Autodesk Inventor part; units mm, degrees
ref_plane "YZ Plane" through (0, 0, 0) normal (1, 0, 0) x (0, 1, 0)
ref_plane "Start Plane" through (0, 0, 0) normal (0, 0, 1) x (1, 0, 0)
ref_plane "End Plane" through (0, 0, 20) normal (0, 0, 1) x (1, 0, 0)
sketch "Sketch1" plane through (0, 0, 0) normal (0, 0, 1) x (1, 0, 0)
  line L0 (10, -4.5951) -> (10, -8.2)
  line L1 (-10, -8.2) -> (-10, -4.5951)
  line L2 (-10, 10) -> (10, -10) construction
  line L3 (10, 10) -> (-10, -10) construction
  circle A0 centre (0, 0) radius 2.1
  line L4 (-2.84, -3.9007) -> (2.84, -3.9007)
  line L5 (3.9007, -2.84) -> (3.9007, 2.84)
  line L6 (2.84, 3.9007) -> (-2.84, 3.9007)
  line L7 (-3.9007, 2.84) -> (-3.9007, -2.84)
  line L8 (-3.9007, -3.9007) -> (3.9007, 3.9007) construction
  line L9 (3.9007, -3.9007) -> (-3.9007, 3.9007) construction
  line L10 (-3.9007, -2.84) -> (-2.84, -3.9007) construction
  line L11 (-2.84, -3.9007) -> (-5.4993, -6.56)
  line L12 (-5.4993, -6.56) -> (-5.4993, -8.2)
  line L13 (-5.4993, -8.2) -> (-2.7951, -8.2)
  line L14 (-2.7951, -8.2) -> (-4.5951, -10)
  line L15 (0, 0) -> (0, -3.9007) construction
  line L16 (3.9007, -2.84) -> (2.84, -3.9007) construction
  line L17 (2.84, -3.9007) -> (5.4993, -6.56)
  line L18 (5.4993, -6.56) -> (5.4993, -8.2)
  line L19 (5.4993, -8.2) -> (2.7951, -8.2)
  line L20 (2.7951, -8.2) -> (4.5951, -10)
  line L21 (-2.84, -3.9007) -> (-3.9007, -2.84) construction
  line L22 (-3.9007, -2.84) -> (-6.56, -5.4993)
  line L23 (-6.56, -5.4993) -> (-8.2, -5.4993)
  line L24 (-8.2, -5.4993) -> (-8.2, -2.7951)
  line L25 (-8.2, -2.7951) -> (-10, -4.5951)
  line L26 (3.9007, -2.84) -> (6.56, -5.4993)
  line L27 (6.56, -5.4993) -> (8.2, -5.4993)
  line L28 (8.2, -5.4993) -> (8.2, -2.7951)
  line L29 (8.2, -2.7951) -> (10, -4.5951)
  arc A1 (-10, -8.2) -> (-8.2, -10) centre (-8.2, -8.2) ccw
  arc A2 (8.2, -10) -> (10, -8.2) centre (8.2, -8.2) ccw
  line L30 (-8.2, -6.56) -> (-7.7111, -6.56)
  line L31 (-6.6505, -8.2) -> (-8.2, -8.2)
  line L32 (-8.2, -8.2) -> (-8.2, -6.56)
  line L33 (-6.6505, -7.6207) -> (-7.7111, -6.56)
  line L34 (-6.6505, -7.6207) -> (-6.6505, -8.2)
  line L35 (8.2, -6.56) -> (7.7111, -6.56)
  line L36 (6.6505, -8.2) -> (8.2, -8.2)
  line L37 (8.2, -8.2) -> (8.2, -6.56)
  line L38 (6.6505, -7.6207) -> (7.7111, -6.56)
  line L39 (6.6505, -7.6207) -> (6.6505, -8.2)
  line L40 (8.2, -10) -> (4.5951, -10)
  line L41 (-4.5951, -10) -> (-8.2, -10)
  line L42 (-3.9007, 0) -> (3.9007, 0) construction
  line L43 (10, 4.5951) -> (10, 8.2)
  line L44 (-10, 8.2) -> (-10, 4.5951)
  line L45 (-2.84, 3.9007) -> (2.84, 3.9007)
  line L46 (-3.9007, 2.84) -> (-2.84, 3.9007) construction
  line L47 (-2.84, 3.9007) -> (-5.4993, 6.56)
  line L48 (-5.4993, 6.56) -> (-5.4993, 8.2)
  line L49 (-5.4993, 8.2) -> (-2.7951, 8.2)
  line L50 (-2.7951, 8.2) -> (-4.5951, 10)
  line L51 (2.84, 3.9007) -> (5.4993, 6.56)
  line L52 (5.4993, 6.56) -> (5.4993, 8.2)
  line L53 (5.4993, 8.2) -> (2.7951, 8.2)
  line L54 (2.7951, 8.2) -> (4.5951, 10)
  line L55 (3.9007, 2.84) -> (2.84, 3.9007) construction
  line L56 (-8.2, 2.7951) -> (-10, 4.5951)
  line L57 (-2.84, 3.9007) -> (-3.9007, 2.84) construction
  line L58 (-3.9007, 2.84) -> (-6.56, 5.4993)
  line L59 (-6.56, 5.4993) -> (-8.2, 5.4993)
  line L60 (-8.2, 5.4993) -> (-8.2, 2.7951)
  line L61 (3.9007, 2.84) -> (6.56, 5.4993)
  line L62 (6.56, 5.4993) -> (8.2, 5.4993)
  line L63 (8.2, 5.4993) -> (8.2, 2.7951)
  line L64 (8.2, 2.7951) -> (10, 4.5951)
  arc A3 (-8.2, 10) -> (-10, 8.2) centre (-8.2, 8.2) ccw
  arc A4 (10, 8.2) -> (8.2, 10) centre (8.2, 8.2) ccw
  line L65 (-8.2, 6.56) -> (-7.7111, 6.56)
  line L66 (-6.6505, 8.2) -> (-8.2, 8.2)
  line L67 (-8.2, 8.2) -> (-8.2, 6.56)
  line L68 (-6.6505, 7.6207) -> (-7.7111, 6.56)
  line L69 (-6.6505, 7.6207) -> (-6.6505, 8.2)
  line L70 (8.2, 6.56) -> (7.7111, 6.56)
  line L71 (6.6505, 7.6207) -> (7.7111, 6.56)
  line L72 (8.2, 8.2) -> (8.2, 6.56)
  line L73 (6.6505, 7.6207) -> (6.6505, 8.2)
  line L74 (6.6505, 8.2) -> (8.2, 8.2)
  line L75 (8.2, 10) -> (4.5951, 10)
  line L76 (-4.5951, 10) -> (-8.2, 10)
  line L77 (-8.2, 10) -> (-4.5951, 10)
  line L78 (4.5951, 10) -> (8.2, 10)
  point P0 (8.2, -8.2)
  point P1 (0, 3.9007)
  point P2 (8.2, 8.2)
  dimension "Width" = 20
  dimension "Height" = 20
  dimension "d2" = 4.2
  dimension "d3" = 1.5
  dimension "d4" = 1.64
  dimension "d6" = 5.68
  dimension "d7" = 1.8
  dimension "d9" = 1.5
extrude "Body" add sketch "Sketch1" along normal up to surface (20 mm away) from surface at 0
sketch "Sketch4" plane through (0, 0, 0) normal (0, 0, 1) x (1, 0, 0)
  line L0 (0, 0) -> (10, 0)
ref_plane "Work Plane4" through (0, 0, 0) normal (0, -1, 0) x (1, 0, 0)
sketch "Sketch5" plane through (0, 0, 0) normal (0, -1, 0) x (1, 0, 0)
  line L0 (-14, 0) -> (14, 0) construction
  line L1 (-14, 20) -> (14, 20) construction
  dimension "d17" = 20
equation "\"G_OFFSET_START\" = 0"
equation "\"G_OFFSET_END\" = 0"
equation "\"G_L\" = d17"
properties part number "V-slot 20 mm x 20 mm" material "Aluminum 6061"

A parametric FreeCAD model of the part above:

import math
import FreeCAD as App
import Part
import Sketcher
from FreeCAD import Vector


def add_polygon(sketch, points):
    """Adds a closed chain of lines whose ends are joined by coincident constraints."""
    first, n = sketch.GeometryCount, len(points)
    for a, b in zip(points, points[1:] + points[:1]):
        sketch.addGeometry(Part.LineSegment(App.Vector(*a, 0), App.Vector(*b, 0)), False)
    for i in range(n):
        sketch.addConstraint(Sketcher.Constraint("Coincident", first + i, 2, first + (i + 1) % n, 1))

doc = App.newDocument("Part")
body = doc.addObject("PartDesign::Body", "Body")

# Sketch on XY plane
sketch1 = body.newObject("Sketcher::SketchObject", "Sketch")
sketch1.AttachmentSupport = (doc.getObject("XY_Plane"), [""])
sketch1.MapMode = "FlatFace"
sketch1.addGeometry(Part.LineSegment(Vector(10, -8.2, 0), Vector(10, -4.5951, 0)), False)  # 0
sketch1.addGeometry(Part.LineSegment(Vector(10, -4.5951, 0), Vector(8.2, -2.7951, 0)), False)  # 1
sketch1.addGeometry(Part.LineSegment(Vector(8.2, -2.7951, 0), Vector(8.2, -5.4993, 0)), False)  # 2
sketch1.addGeometry(Part.LineSegment(Vector(8.2, -5.4993, 0), Vector(6.56, -5.4993, 0)), False)  # 3
sketch1.addGeometry(Part.LineSegment(Vector(6.56, -5.4993, 0), Vector(3.9007, -2.84, 0)), False)  # 4
sketch1.addGeometry(Part.LineSegment(Vector(3.9007, -2.84, 0), Vector(3.9007, 2.84, 0)), False)  # 5
sketch1.addGeometry(Part.LineSegment(Vector(3.9007, 2.84, 0), Vector(6.56, 5.4993, 0)), False)  # 6
sketch1.addGeometry(Part.LineSegment(Vector(6.56, 5.4993, 0), Vector(8.2, 5.4993, 0)), False)  # 7
sketch1.addGeometry(Part.LineSegment(Vector(8.2, 5.4993, 0), Vector(8.2, 2.7951, 0)), False)  # 8
sketch1.addGeometry(Part.LineSegment(Vector(8.2, 2.7951, 0), Vector(10, 4.5951, 0)), False)  # 9
sketch1.addGeometry(Part.LineSegment(Vector(10, 4.5951, 0), Vector(10, 8.2, 0)), False)  # 10
sketch1.addGeometry(Part.ArcOfCircle(Part.Circle(Vector(8.2, 8.2, 0), Vector(0, 0, 1), 1.8), math.radians(0), math.radians(90)), False)  # 11
sketch1.addGeometry(Part.LineSegment(Vector(8.2, 10, 0), Vector(4.5951, 10, 0)), False)  # 12
sketch1.addGeometry(Part.LineSegment(Vector(4.5951, 10, 0), Vector(2.7951, 8.2, 0)), False)  # 13
sketch1.addGeometry(Part.LineSegment(Vector(2.7951, 8.2, 0), Vector(5.4993, 8.2, 0)), False)  # 14
sketch1.addGeometry(Part.LineSegment(Vector(5.4993, 8.2, 0), Vector(5.4993, 6.56, 0)), False)  # 15
sketch1.addGeometry(Part.LineSegment(Vector(5.4993, 6.56, 0), Vector(2.84, 3.9007, 0)), False)  # 16
sketch1.addGeometry(Part.LineSegment(Vector(2.84, 3.9007, 0), Vector(-2.84, 3.9007, 0)), False)  # 17
sketch1.addGeometry(Part.LineSegment(Vector(-2.84, 3.9007, 0), Vector(-5.4993, 6.56, 0)), False)  # 18
sketch1.addGeometry(Part.LineSegment(Vector(-5.4993, 6.56, 0), Vector(-5.4993, 8.2, 0)), False)  # 19
sketch1.addGeometry(Part.LineSegment(Vector(-5.4993, 8.2, 0), Vector(-2.7951, 8.2, 0)), False)  # 20
sketch1.addGeometry(Part.LineSegment(Vector(-2.7951, 8.2, 0), Vector(-4.5951, 10, 0)), False)  # 21
sketch1.addGeometry(Part.LineSegment(Vector(-4.5951, 10, 0), Vector(-8.2, 10, 0)), False)  # 22
sketch1.addGeometry(Part.ArcOfCircle(Part.Circle(Vector(-8.2, 8.2, 0), Vector(0, 0, 1), 1.8), math.radians(90), math.radians(180)), False)  # 23
sketch1.addGeometry(Part.LineSegment(Vector(-10, 8.2, 0), Vector(-10, 4.5951, 0)), False)  # 24
sketch1.addGeometry(Part.LineSegment(Vector(-10, 4.5951, 0), Vector(-8.2, 2.7951, 0)), False)  # 25
sketch1.addGeometry(Part.LineSegment(Vector(-8.2, 2.7951, 0), Vector(-8.2, 5.4993, 0)), False)  # 26
sketch1.addGeometry(Part.LineSegment(Vector(-8.2, 5.4993, 0), Vector(-6.56, 5.4993, 0)), False)  # 27
sketch1.addGeometry(Part.LineSegment(Vector(-6.56, 5.4993, 0), Vector(-3.9007, 2.84, 0)), False)  # 28
sketch1.addGeometry(Part.LineSegment(Vector(-3.9007, 2.84, 0), Vector(-3.9007, -2.84, 0)), False)  # 29
sketch1.addGeometry(Part.LineSegment(Vector(-3.9007, -2.84, 0), Vector(-6.56, -5.4993, 0)), False)  # 30
sketch1.addGeometry(Part.LineSegment(Vector(-6.56, -5.4993, 0), Vector(-8.2, -5.4993, 0)), False)  # 31
sketch1.addGeometry(Part.LineSegment(Vector(-8.2, -5.4993, 0), Vector(-8.2, -2.7951, 0)), False)  # 32
sketch1.addGeometry(Part.LineSegment(Vector(-8.2, -2.7951, 0), Vector(-10, -4.5951, 0)), False)  # 33
sketch1.addGeometry(Part.LineSegment(Vector(-10, -4.5951, 0), Vector(-10, -8.2, 0)), False)  # 34
sketch1.addGeometry(Part.ArcOfCircle(Part.Circle(Vector(-8.2, -8.2, 0), Vector(0, 0, 1), 1.8), math.radians(180), math.radians(270)), False)  # 35
sketch1.addGeometry(Part.LineSegment(Vector(-8.2, -10, 0), Vector(-4.5951, -10, 0)), False)  # 36
sketch1.addGeometry(Part.LineSegment(Vector(-4.5951, -10, 0), Vector(-2.7951, -8.2, 0)), False)  # 37
sketch1.addGeometry(Part.LineSegment(Vector(-2.7951, -8.2, 0), Vector(-5.4993, -8.2, 0)), False)  # 38
sketch1.addGeometry(Part.LineSegment(Vector(-5.4993, -8.2, 0), Vector(-5.4993, -6.56, 0)), False)  # 39
sketch1.addGeometry(Part.LineSegment(Vector(-5.4993, -6.56, 0), Vector(-2.84, -3.9007, 0)), False)  # 40
sketch1.addGeometry(Part.LineSegment(Vector(-2.84, -3.9007, 0), Vector(2.84, -3.9007, 0)), False)  # 41
sketch1.addGeometry(Part.LineSegment(Vector(2.84, -3.9007, 0), Vector(5.4993, -6.56, 0)), False)  # 42
sketch1.addGeometry(Part.LineSegment(Vector(5.4993, -6.56, 0), Vector(5.4993, -8.2, 0)), False)  # 43
sketch1.addGeometry(Part.LineSegment(Vector(5.4993, -8.2, 0), Vector(2.7951, -8.2, 0)), False)  # 44
sketch1.addGeometry(Part.LineSegment(Vector(2.7951, -8.2, 0), Vector(4.5951, -10, 0)), False)  # 45
sketch1.addGeometry(Part.LineSegment(Vector(4.5951, -10, 0), Vector(8.2, -10, 0)), False)  # 46
sketch1.addGeometry(Part.ArcOfCircle(Part.Circle(Vector(8.2, -8.2, 0), Vector(0, 0, 1), 1.8), math.radians(-90), math.radians(0)), False)  # 47
add_polygon(sketch1, [(-8.2, -8.2), (-8.2, -6.56), (-7.7111, -6.56), (-6.6505, -7.6207), (-6.6505, -8.2)])  # lines 48-52
add_polygon(sketch1, [(7.7111, -6.56), (8.2, -6.56), (8.2, -8.2), (6.6505, -8.2), (6.6505, -7.6207)])  # lines 53-57
add_polygon(sketch1, [(-7.7111, 6.56), (-8.2, 6.56), (-8.2, 8.2), (-6.6505, 8.2), (-6.6505, 7.6207)])  # lines 58-62
sketch1.addGeometry(Part.Circle(Vector(0, 0, 0), Vector(0, 0, 1), 2.1), False)  # 63
add_polygon(sketch1, [(8.2, 8.2), (8.2, 6.56), (7.7111, 6.56), (6.6505, 7.6207), (6.6505, 8.2)])  # lines 64-68
sketch1.addConstraint([
    Sketcher.Constraint("Coincident", 0, 2, 1, 1),
    Sketcher.Constraint("Coincident", 1, 2, 2, 1),
    Sketcher.Constraint("Coincident", 2, 2, 3, 1),
    Sketcher.Constraint("Coincident", 3, 2, 4, 1),
    Sketcher.Constraint("Coincident", 4, 2, 5, 1),
    Sketcher.Constraint("Coincident", 5, 2, 6, 1),
    Sketcher.Constraint("Coincident", 6, 2, 7, 1),
    Sketcher.Constraint("Coincident", 7, 2, 8, 1),
    Sketcher.Constraint("Coincident", 8, 2, 9, 1),
    Sketcher.Constraint("Coincident", 9, 2, 10, 1),
    Sketcher.Constraint("Tangent", 10, 2, 11, 1),
    Sketcher.Constraint("Tangent", 11, 2, 12, 1),
    Sketcher.Constraint("Coincident", 12, 2, 13, 1),
    Sketcher.Constraint("Coincident", 13, 2, 14, 1),
    Sketcher.Constraint("Coincident", 14, 2, 15, 1),
    Sketcher.Constraint("Coincident", 15, 2, 16, 1),
    Sketcher.Constraint("Coincident", 16, 2, 17, 1),
    Sketcher.Constraint("Coincident", 17, 2, 18, 1),
    Sketcher.Constraint("Coincident", 18, 2, 19, 1),
    Sketcher.Constraint("Coincident", 19, 2, 20, 1),
    Sketcher.Constraint("Coincident", 20, 2, 21, 1),
    Sketcher.Constraint("Coincident", 21, 2, 22, 1),
    Sketcher.Constraint("Tangent", 22, 2, 23, 1),
    Sketcher.Constraint("Tangent", 23, 2, 24, 1),
    Sketcher.Constraint("Coincident", 24, 2, 25, 1),
    Sketcher.Constraint("Coincident", 25, 2, 26, 1),
    Sketcher.Constraint("Coincident", 26, 2, 27, 1),
    Sketcher.Constraint("Coincident", 27, 2, 28, 1),
    Sketcher.Constraint("Coincident", 28, 2, 29, 1),
    Sketcher.Constraint("Coincident", 29, 2, 30, 1),
    Sketcher.Constraint("Coincident", 30, 2, 31, 1),
    Sketcher.Constraint("Coincident", 31, 2, 32, 1),
    Sketcher.Constraint("Coincident", 32, 2, 33, 1),
    Sketcher.Constraint("Coincident", 33, 2, 34, 1),
    Sketcher.Constraint("Tangent", 34, 2, 35, 1),
    Sketcher.Constraint("Tangent", 35, 2, 36, 1),
    Sketcher.Constraint("Coincident", 36, 2, 37, 1),
    Sketcher.Constraint("Coincident", 37, 2, 38, 1),
    Sketcher.Constraint("Coincident", 38, 2, 39, 1),
    Sketcher.Constraint("Coincident", 39, 2, 40, 1),
    Sketcher.Constraint("Coincident", 40, 2, 41, 1),
    Sketcher.Constraint("Coincident", 41, 2, 42, 1),
    Sketcher.Constraint("Coincident", 42, 2, 43, 1),
    Sketcher.Constraint("Coincident", 43, 2, 44, 1),
    Sketcher.Constraint("Coincident", 44, 2, 45, 1),
    Sketcher.Constraint("Coincident", 45, 2, 46, 1),
    Sketcher.Constraint("Tangent", 46, 2, 47, 1),
    Sketcher.Constraint("Tangent", 47, 2, 0, 1),
    Sketcher.Constraint("Vertical", 0),
    Sketcher.Constraint("Vertical", 2),
    Sketcher.Constraint("Horizontal", 3),
    Sketcher.Constraint("Vertical", 5),
    Sketcher.Constraint("Horizontal", 7),
    Sketcher.Constraint("Vertical", 8),
    Sketcher.Constraint("Vertical", 10),
    Sketcher.Constraint("Horizontal", 12),
    Sketcher.Constraint("Horizontal", 14),
    Sketcher.Constraint("Vertical", 15),
    Sketcher.Constraint("Horizontal", 17),
    Sketcher.Constraint("Vertical", 19),
    Sketcher.Constraint("Horizontal", 20),
    Sketcher.Constraint("Horizontal", 22),
    Sketcher.Constraint("Vertical", 24),
    Sketcher.Constraint("Vertical", 26),
    Sketcher.Constraint("Horizontal", 27),
    Sketcher.Constraint("Vertical", 29),
    Sketcher.Constraint("Horizontal", 31),
    Sketcher.Constraint("Vertical", 32),
    Sketcher.Constraint("Vertical", 34),
    Sketcher.Constraint("Horizontal", 36),
    Sketcher.Constraint("Horizontal", 38),
    Sketcher.Constraint("Vertical", 39),
    Sketcher.Constraint("Horizontal", 41),
    Sketcher.Constraint("Vertical", 43),
    Sketcher.Constraint("Horizontal", 44),
    Sketcher.Constraint("Horizontal", 46),
    Sketcher.Constraint("Vertical", 48),
    Sketcher.Constraint("Horizontal", 49),
    Sketcher.Constraint("Vertical", 51),
    Sketcher.Constraint("Horizontal", 52),
    Sketcher.Constraint("Horizontal", 53),
    Sketcher.Constraint("Vertical", 54),
    Sketcher.Constraint("Horizontal", 55),
    Sketcher.Constraint("Vertical", 56),
    Sketcher.Constraint("Horizontal", 58),
    Sketcher.Constraint("Vertical", 59),
    Sketcher.Constraint("Horizontal", 60),
    Sketcher.Constraint("Vertical", 61),
    Sketcher.Constraint("Vertical", 64),
    Sketcher.Constraint("Horizontal", 65),
    Sketcher.Constraint("Vertical", 67),
    Sketcher.Constraint("Horizontal", 68),
    Sketcher.Constraint("Coincident", 63, 3, -1, 1),
    Sketcher.Constraint("Coincident", 52, 2, 35, 3),
    Sketcher.Constraint("Coincident", 54, 2, 47, 3),
    Sketcher.Constraint("Coincident", 59, 2, 23, 3),
    Sketcher.Constraint("Coincident", 68, 2, 11, 3),
    Sketcher.Constraint("Equal", 11, 23),
    Sketcher.Constraint("Equal", 23, 35),
    Sketcher.Constraint("Equal", 35, 47),
    Sketcher.Constraint("Symmetric", 11, 3, 35, 3, -1, 1),
    Sketcher.Constraint("Symmetric", 23, 3, 47, 3, -1, 1),
    Sketcher.Constraint("Symmetric", 1, 2, 25, 2, -1, 1),
    Sketcher.Constraint("Symmetric", 3, 2, 27, 2, -1, 1),
    Sketcher.Constraint("Symmetric", 4, 2, 28, 2, -1, 1),
    Sketcher.Constraint("Symmetric", 6, 2, 30, 2, -1, 1),
    Sketcher.Constraint("Symmetric", 8, 2, 32, 2, -1, 1),
    Sketcher.Constraint("Symmetric", 13, 2, 37, 2, -1, 1),
    Sketcher.Constraint("Symmetric", 15, 2, 39, 2, -1, 1),
    Sketcher.Constraint("Symmetric", 16, 2, 40, 2, -1, 1),
    Sketcher.Constraint("Symmetric", 18, 2, 42, 2, -1, 1),
    Sketcher.Constraint("Symmetric", 20, 2, 44, 2, -1, 1),
    Sketcher.Constraint("Symmetric", 56, 2, 61, 2, -1, 1),
    Sketcher.Constraint("Symmetric", 57, 2, 62, 2, -1, 1),
    Sketcher.Constraint("Symmetric", 49, 2, 65, 2, -1, 1),
    Sketcher.Constraint("Symmetric", 50, 2, 66, 2, -1, 1),
    Sketcher.Constraint("Symmetric", 11, 3, 23, 3, -2),
    Sketcher.Constraint("Symmetric", 15, 2, 18, 2, -2),
    Sketcher.Constraint("Symmetric", 13, 2, 20, 2, -2),
    Sketcher.Constraint("Symmetric", 8, 2, 25, 2, -2),
    Sketcher.Constraint("Symmetric", 6, 2, 27, 2, -2),
    Sketcher.Constraint("Symmetric", 50, 2, 56, 2, -2),
    Sketcher.Constraint("Symmetric", 49, 2, 57, 2, -2),
    Sketcher.Constraint("Parallel", 1, 4),
    Sketcher.Constraint("Perpendicular", 4, 6),
    Sketcher.Constraint("Parallel", 6, 9),
    Sketcher.Constraint("Parallel", 9, 13),
    Sketcher.Constraint("Parallel", 13, 16),
    Sketcher.Constraint("Perpendicular", 16, 18),
    Sketcher.Constraint("Parallel", 18, 21),
    Sketcher.Constraint("Parallel", 21, 25),
    Sketcher.Constraint("Perpendicular", 28, 30),
    Sketcher.Constraint("Parallel", 30, 33),
    Sketcher.Constraint("Parallel", 33, 37),
    Sketcher.Constraint("Perpendicular", 40, 42),
    Sketcher.Constraint("Parallel", 42, 45),
    Sketcher.Constraint("Parallel", 45, 50),
    Sketcher.Constraint("Perpendicular", 50, 57),
    Sketcher.Constraint("Horizontal", 10, 2, 13, 2),
    Sketcher.Constraint("Horizontal", 42, 2, 48, 2),
    Sketcher.Constraint("Vertical", 47, 3, 1, 2),
    Sketcher.Constraint("Equal", 46, 0),
    Sketcher.Constraint("Equal", 44, 2),
    Sketcher.Constraint("Equal", 41, 5),
    Sketcher.Constraint("Equal", 31, 15),
    Sketcher.Constraint("Equal", 6, 16),
    Sketcher.Constraint("Diameter", 63, 4.2),
    Sketcher.Constraint("Radius", 11, 1.8),
    Sketcher.Constraint("Distance", 50, 1.5),
    Sketcher.Constraint("DistanceX", 3, 2, 3, 1, 1.64),
    Sketcher.Constraint("DistanceX", 17, 2, 17, 1, 5.68),
    Sketcher.Constraint("DistanceX", -1, 1, 0, 2, 10.0),
    Sketcher.Constraint("DistanceX", 12, 2, 12, 1, 3.605),
    Sketcher.Constraint("DistanceX", 49, 1, 49, 2, 0.489),
    Sketcher.Constraint("DistanceX", 14, 1, 14, 2, 2.7042),
])
pad1 = body.newObject("PartDesign::Pad", "Pad")
pad1.Profile = sketch1
pad1.Length = 20

doc.recompute()
